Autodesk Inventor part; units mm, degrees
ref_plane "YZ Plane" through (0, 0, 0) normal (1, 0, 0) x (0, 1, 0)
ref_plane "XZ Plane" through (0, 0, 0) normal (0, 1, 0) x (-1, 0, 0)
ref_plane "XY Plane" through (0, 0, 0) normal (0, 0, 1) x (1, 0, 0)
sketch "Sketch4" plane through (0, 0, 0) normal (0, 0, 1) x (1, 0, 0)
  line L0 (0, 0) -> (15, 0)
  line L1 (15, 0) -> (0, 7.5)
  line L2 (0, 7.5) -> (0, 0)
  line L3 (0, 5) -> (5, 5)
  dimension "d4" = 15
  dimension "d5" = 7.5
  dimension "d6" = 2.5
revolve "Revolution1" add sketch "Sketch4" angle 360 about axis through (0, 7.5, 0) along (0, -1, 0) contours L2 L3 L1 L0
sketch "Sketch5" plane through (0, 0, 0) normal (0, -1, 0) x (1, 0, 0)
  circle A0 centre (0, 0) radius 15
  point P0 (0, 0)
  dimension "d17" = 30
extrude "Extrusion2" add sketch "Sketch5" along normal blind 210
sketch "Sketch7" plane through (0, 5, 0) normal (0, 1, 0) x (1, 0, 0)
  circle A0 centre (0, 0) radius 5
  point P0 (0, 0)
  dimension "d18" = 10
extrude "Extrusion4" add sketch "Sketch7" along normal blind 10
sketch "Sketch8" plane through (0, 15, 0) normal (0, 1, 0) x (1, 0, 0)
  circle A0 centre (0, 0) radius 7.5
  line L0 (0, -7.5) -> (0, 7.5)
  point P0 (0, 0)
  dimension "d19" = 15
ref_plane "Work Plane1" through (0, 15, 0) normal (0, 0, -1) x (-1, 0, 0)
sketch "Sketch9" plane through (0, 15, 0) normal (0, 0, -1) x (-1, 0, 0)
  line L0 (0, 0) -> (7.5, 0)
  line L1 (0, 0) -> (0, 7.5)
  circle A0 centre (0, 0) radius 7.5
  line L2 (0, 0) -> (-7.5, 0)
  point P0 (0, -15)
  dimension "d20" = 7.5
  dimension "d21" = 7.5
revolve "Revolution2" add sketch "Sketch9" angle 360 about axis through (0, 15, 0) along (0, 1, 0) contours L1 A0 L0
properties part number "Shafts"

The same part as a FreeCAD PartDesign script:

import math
import FreeCAD as App
import Part
import Sketcher
from FreeCAD import Vector
Q = App.Units.Quantity

doc = App.newDocument("Part")
body = doc.addObject("PartDesign::Body", "Body")

sketch1 = body.newObject("Sketcher::SketchObject", "Sketch")
sketch1.AttachmentSupport = (doc.getObject("XY_Plane"), [""])
sketch1.MapMode = "FlatFace"
sketch1.addGeometry([
    Part.LineSegment(Vector(0, 5, 0), Vector(0, 0, 0)),
    Part.LineSegment(Vector(0, 0, 0), Vector(15, 0, 0)),
    Part.LineSegment(Vector(15, 0, 0), Vector(5, 5, 0)),
    Part.LineSegment(Vector(5, 5, 0), Vector(0, 5, 0)),
], False)
sketch1.addConstraint([
    Sketcher.Constraint("Coincident", 0, 2, 1, 1),
    Sketcher.Constraint("Coincident", 1, 2, 2, 1),
    Sketcher.Constraint("Coincident", 2, 2, 3, 1),
    Sketcher.Constraint("Coincident", 3, 2, 0, 1),
    Sketcher.Constraint("Vertical", 0),
    Sketcher.Constraint("Horizontal", 1),
    Sketcher.Constraint("Horizontal", 3),
    Sketcher.Constraint("Coincident", 0, 2, -1, 1),
    Sketcher.Constraint("Equal", 3, 0),
    Sketcher.Constraint("DistanceX", 1, 1, 1, 2, Q("15 mm")),
    Sketcher.Constraint("DistanceX", 3, 2, 3, 1, Q("5 mm")),
])
revolution = body.newObject("PartDesign::Revolution", "Revolution")
revolution.Profile = sketch1
revolution.ReferenceAxis = (sketch1, ["V_Axis"])
revolution.Angle = 360

sketch2 = body.newObject("Sketcher::SketchObject", "Sketch001")
sketch2.AttachmentSupport = (doc.getObject("XZ_Plane"), [""])
sketch2.MapMode = "FlatFace"
sketch2.addGeometry(Part.Circle(Vector(0, 0, 0), Vector(0, 0, 1), 15), False)
sketch2.addConstraint([
    Sketcher.Constraint("Coincident", 0, 3, -1, 1),
    Sketcher.Constraint("Diameter", 0, Q("30 mm")),
])
pad1 = body.newObject("PartDesign::Pad", "Pad")
pad1.Profile = sketch2
pad1.Length = 210

sketch3 = body.newObject("Sketcher::SketchObject", "Sketch002")
sketch3.AttachmentSupport = (doc.getObject("XZ_Plane"), [""])
sketch3.MapMode = "FlatFace"
sketch3.AttachmentOffset = App.Placement(Vector(0, 0, -5), App.Rotation())
sketch3.addGeometry(Part.Circle(Vector(0, 0, 0), Vector(0, 0, 1), 5), False)
sketch3.addConstraint([
    Sketcher.Constraint("Coincident", 0, 3, -1, 1),
    Sketcher.Constraint("Diameter", 0, Q("10 mm")),
])
pad2 = body.newObject("PartDesign::Pad", "Pad001")
pad2.Profile = sketch3
pad2.Length = 10
pad2.Reversed = True

sketch4 = body.newObject("Sketcher::SketchObject", "Sketch003")
sketch4.AttachmentSupport = (doc.getObject("XY_Plane"), [""])
sketch4.MapMode = "FlatFace"
sketch4.addGeometry([
    Part.LineSegment(Vector(0, 22, 0), Vector(0, 15, 0)),
    Part.LineSegment(Vector(0, 15, 0), Vector(-8, 15, 0)),
    Part.ArcOfCircle(Part.Circle(Vector(0, 15, 0), Vector(0, 0, 1), 8), math.radians(90), math.radians(180)),
], False)
sketch4.addConstraint([
    Sketcher.Constraint("Coincident", 0, 2, 1, 1),
    Sketcher.Constraint("Coincident", 1, 2, 2, 2),
    Sketcher.Constraint("Coincident", 2, 1, 0, 1),
    Sketcher.Constraint("Vertical", 0),
    Sketcher.Constraint("Horizontal", 1),
    Sketcher.Constraint("Coincident", 0, 2, 2, 3),
    Sketcher.Constraint("PointOnObject", 2, 3, -2),
    Sketcher.Constraint("Radius", 2, Q("7.5 mm")),
    Sketcher.Constraint("DistanceY", -1, 1, 2, 3, Q("15 mm")),
])
revolution2 = body.newObject("PartDesign::Revolution", "Revolution001")
revolution2.Profile = sketch4
revolution2.ReferenceAxis = (sketch4, ["V_Axis"])
revolution2.Angle = 360

doc.recompute()
